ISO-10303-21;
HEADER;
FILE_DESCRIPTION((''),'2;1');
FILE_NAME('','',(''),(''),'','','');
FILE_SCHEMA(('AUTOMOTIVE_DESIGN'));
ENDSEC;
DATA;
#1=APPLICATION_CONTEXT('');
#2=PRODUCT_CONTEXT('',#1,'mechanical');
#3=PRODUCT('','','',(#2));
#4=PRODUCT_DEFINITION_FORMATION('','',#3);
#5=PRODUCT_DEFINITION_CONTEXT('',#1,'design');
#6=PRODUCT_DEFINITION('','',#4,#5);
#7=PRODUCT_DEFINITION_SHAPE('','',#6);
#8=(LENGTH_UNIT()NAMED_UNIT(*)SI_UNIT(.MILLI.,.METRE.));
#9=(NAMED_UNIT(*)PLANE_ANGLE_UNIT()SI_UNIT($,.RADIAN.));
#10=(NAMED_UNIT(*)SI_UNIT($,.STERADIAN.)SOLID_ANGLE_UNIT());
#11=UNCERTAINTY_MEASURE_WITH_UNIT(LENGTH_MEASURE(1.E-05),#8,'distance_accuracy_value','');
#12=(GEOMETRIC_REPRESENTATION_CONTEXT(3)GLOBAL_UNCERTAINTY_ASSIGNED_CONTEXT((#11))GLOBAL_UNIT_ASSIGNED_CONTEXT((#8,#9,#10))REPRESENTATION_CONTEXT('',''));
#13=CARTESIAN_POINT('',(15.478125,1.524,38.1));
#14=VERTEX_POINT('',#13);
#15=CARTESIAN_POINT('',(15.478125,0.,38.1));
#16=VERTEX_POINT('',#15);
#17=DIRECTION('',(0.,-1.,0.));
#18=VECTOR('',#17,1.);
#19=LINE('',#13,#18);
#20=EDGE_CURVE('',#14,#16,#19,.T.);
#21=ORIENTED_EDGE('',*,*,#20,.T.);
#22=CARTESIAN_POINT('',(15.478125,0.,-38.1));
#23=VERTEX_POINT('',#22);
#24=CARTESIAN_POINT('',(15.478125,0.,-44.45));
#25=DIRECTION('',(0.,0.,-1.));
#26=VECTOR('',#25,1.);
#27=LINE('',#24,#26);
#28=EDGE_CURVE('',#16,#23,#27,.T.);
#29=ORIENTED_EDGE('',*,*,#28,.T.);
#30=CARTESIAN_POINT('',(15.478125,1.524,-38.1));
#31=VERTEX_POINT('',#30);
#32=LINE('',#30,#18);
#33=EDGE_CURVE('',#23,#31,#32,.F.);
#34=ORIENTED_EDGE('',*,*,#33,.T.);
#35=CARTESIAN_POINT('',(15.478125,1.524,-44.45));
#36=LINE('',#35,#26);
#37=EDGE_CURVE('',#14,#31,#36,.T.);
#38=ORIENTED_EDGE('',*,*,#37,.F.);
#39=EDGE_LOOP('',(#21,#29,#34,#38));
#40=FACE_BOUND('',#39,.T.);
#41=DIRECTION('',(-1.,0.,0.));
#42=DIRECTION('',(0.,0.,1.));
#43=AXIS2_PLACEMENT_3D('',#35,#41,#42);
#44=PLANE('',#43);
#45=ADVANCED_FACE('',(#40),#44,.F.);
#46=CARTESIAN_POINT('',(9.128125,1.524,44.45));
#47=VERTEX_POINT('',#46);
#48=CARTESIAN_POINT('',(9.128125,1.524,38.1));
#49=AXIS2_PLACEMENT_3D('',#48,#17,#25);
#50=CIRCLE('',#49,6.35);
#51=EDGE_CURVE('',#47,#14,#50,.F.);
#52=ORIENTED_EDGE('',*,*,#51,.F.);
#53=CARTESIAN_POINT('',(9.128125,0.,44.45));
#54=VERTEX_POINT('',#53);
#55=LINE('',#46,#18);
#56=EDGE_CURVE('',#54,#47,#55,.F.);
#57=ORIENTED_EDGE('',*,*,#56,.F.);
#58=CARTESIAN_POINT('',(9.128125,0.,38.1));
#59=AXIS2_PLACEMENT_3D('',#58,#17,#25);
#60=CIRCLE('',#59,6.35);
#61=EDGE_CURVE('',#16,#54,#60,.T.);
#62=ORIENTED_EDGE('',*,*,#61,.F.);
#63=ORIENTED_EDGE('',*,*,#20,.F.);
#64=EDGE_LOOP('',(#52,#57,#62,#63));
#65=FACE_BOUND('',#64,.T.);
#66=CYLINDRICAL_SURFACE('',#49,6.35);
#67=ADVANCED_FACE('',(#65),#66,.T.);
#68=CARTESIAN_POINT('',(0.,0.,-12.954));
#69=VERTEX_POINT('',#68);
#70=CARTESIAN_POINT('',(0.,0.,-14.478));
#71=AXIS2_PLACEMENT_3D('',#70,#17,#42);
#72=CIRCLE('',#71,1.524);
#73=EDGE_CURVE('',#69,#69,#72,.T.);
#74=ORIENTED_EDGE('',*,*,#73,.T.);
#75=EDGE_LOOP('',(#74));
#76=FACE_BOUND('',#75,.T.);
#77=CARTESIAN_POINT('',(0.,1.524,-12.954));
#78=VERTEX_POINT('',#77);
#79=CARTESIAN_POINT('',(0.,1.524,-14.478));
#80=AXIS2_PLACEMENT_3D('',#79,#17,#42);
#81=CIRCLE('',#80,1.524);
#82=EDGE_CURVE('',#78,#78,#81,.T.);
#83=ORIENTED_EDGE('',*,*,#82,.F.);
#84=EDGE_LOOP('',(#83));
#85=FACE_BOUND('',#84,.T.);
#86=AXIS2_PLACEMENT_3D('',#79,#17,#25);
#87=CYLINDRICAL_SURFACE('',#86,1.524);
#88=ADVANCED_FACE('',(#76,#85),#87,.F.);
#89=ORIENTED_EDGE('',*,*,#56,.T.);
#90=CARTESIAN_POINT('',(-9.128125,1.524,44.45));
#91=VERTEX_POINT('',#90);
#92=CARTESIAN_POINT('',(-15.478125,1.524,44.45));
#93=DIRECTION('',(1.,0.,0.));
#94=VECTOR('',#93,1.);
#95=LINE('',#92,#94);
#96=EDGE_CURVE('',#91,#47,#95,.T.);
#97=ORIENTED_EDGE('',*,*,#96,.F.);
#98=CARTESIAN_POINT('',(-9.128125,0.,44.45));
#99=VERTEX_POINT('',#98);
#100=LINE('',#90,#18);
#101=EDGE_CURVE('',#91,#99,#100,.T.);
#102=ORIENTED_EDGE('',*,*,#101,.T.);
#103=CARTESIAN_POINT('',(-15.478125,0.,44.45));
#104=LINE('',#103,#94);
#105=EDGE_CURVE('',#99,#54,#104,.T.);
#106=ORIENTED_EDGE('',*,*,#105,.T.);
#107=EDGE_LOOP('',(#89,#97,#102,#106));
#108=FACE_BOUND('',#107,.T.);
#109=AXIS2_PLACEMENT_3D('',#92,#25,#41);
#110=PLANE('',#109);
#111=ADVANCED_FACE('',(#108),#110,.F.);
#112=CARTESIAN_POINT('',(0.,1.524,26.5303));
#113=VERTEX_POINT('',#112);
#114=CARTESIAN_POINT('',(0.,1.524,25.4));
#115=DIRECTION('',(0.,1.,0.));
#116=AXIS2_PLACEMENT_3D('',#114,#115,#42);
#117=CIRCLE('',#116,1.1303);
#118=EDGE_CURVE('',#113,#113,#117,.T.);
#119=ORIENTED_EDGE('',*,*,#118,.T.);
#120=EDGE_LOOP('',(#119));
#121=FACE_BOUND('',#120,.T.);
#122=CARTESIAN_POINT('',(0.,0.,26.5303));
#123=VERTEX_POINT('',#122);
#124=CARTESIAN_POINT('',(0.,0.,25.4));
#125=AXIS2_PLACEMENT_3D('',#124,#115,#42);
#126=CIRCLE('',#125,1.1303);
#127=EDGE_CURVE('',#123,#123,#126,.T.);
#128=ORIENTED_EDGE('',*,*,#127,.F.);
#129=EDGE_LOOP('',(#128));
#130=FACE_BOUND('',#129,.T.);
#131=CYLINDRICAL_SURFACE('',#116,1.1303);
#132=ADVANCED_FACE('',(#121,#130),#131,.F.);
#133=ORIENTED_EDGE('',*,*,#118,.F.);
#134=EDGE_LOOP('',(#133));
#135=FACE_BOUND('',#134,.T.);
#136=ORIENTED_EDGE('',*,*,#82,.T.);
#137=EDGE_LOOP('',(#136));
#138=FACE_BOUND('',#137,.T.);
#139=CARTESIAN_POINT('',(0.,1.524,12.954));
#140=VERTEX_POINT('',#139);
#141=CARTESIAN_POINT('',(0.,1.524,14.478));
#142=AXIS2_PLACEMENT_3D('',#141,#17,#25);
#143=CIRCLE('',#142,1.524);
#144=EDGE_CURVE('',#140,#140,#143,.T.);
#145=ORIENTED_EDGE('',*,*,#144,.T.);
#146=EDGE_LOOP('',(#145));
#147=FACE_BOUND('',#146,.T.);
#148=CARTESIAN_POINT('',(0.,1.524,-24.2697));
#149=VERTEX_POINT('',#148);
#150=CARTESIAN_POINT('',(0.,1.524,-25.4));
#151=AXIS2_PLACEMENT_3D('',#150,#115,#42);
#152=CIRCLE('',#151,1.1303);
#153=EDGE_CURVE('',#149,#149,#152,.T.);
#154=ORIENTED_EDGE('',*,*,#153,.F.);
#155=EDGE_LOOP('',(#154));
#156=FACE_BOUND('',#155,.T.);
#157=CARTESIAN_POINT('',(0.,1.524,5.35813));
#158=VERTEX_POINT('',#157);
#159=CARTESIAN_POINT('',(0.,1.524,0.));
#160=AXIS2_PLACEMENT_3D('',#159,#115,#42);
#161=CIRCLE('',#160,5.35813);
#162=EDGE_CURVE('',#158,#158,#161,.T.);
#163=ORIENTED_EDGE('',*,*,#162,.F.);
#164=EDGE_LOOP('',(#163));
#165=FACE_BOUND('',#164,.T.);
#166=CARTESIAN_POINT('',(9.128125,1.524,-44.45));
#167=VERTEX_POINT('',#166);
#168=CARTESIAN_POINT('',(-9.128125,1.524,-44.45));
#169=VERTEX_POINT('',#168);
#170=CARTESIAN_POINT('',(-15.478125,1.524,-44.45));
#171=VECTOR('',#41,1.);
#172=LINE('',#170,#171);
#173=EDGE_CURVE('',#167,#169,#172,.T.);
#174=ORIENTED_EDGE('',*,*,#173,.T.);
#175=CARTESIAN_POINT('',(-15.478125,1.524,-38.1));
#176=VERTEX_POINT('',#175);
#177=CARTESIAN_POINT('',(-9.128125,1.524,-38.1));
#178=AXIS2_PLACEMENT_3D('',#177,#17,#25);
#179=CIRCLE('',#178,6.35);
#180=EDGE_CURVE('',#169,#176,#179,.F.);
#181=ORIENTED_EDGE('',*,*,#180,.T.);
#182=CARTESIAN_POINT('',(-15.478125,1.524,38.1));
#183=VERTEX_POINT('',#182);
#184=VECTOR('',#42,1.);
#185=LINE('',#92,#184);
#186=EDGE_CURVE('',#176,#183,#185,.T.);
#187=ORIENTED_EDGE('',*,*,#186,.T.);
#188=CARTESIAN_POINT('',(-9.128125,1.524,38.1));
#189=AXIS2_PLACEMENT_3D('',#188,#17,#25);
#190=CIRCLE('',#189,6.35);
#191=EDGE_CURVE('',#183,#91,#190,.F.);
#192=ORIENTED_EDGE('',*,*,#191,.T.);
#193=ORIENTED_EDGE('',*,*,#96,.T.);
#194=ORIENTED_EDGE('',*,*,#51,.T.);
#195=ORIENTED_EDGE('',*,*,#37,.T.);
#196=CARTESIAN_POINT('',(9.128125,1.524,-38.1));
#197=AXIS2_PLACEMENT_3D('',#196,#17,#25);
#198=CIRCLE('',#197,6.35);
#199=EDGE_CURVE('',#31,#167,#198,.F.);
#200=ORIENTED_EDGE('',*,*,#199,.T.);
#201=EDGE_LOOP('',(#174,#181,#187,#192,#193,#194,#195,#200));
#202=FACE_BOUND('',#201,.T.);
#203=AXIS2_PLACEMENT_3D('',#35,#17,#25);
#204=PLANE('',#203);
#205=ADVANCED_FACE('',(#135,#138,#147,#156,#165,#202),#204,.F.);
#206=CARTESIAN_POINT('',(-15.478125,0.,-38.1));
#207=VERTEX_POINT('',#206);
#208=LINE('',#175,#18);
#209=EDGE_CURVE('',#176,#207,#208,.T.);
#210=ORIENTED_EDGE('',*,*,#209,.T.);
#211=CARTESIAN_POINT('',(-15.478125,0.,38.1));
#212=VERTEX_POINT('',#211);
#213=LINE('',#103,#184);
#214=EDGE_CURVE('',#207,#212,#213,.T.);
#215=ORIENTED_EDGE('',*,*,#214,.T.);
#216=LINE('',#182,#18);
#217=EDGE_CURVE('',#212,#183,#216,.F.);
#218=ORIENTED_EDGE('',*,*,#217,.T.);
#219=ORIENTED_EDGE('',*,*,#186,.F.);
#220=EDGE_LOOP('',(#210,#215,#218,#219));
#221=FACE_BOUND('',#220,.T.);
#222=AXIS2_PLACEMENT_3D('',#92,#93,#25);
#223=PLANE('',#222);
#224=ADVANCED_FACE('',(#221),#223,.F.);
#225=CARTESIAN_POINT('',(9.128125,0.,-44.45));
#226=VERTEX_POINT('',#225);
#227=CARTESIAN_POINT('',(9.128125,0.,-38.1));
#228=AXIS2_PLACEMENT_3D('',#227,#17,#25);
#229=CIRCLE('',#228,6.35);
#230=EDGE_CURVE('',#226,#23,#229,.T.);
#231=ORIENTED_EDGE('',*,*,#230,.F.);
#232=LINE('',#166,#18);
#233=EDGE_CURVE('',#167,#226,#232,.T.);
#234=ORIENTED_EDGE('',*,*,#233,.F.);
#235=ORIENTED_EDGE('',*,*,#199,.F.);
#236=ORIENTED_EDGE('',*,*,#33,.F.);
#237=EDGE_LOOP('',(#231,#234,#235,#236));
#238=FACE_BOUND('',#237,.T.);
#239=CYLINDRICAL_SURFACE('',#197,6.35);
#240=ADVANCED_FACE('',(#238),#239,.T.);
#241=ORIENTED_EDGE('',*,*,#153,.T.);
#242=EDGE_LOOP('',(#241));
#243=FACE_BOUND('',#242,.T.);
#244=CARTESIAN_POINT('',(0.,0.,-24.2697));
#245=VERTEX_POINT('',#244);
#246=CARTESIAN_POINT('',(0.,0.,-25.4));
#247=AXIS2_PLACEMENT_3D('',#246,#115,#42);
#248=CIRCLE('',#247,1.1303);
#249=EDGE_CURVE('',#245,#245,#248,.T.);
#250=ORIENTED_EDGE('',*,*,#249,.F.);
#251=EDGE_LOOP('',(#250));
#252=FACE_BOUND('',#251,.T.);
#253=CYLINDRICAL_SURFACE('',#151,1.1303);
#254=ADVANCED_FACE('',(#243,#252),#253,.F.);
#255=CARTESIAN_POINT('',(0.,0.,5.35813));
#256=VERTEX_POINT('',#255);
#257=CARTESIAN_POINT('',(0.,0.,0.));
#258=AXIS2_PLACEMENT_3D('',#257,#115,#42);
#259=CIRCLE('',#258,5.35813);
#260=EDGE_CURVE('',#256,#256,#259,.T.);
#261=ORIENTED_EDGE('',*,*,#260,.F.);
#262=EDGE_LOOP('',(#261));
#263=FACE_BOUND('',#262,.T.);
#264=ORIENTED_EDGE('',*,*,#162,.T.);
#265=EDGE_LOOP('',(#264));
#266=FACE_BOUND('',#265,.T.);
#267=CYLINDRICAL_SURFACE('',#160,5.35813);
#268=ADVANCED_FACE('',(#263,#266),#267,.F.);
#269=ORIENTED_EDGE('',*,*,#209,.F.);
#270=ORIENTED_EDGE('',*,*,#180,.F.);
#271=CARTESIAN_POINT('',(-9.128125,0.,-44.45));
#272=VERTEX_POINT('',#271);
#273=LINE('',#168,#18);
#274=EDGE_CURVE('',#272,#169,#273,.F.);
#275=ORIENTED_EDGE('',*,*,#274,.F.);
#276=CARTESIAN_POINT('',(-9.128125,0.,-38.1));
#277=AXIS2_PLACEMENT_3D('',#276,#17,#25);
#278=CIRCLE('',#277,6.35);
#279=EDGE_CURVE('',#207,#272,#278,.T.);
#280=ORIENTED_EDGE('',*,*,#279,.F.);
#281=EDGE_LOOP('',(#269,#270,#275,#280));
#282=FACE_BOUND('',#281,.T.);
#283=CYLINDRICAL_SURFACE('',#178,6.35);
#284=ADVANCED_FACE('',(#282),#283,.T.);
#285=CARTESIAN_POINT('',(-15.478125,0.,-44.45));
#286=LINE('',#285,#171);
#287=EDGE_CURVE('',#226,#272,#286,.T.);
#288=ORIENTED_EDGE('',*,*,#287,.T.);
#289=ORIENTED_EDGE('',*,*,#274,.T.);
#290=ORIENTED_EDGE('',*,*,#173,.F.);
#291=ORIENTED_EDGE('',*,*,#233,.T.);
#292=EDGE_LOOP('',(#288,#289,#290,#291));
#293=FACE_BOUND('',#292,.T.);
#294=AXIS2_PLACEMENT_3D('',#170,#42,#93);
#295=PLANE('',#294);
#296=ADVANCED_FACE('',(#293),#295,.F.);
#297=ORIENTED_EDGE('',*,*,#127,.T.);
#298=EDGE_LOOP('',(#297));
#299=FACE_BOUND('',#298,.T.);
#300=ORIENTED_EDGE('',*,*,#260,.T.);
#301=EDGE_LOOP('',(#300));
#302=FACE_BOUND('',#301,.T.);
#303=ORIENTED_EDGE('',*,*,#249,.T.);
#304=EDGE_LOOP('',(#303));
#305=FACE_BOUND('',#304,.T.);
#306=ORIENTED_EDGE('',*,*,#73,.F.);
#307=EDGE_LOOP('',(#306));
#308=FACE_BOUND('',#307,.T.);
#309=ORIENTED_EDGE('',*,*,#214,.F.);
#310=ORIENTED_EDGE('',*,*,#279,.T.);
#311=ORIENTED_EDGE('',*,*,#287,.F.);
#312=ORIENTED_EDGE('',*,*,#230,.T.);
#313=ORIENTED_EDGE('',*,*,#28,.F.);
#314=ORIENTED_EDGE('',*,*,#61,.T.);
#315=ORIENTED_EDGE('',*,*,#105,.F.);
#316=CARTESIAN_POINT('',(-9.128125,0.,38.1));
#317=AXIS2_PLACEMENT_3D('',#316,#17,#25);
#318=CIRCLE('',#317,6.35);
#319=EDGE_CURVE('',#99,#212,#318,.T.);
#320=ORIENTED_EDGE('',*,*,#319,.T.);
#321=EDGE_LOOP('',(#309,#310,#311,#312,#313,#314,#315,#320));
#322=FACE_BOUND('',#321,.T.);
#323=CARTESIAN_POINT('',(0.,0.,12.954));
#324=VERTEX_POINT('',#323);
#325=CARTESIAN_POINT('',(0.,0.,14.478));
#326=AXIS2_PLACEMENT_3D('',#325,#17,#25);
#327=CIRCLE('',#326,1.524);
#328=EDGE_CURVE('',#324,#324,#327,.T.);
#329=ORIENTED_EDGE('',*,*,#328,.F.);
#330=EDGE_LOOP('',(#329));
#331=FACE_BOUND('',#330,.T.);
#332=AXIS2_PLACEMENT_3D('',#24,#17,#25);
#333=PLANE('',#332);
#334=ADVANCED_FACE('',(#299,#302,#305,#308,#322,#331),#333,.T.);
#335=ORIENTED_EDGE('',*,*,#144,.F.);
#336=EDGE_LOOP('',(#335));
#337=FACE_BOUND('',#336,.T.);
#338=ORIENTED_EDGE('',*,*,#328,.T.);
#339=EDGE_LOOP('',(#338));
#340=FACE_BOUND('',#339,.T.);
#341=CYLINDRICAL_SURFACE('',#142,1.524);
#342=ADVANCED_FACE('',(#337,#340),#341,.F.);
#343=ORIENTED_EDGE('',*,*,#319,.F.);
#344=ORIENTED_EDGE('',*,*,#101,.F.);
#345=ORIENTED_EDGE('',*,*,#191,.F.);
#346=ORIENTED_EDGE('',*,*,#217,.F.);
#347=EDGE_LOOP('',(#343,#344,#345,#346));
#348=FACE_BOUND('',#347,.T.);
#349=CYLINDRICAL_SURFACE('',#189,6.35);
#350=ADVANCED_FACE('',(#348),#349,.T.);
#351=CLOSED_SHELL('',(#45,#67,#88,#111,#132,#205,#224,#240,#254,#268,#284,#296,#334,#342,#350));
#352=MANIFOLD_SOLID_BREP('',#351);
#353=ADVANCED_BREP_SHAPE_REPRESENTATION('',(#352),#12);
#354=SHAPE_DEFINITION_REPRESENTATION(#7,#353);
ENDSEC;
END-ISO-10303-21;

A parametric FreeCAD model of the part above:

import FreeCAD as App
import Part
import Sketcher
Q = App.Units.Quantity


def edges_at(feature, points):
    """Names of the edges that pass closest to the given points."""
    edges = feature.Shape.Edges
    near = lambda p: min(range(len(edges)), key=lambda i: edges[i].distToShape(Part.Vertex(*p))[0])
    return sorted({f"Edge{near(p) + 1}" for p in points})

doc = App.newDocument("Part")
params = doc.addObject("Spreadsheet::Sheet", "Params")
for row, (alias, value) in enumerate([
    ("sketch1_height", "3.5 in"),
    ("sketch1_width", "1.21875 in"),
    ("pad1_length", "0.06 in"),
    ("fillet_radius", "0.25 in"),
    ("sketch2_diameter", "0.12 in"),
    ("sketch3_diameter", "0.089 in"),
    ("hole_diameter", "0.089 in"),
    ("hole2_diameter", "0.4219 in"),
], start=1):
    params.set(f"A{row}", alias)
    params.set(f"B{row}", "=" + value)
    params.setAlias(f"B{row}", alias)

body = doc.addObject("PartDesign::Body", "Body")

# Sketch on XZ plane
sketch1 = body.newObject("Sketcher::SketchObject", "Sketch")
sketch1.AttachmentSupport = (doc.getObject("XZ_Plane"), [""])
sketch1.MapMode = "FlatFace"
sketch1.addGeometry([
    Part.LineSegment(App.Vector(-15, -44, 0), App.Vector(-15, 44, 0)),
    Part.LineSegment(App.Vector(-15, 44, 0), App.Vector(15, 44, 0)),
    Part.LineSegment(App.Vector(15, 44, 0), App.Vector(15, -44, 0)),
    Part.LineSegment(App.Vector(15, -44, 0), App.Vector(-15, -44, 0)),
], False)
sketch1.addConstraint([
    Sketcher.Constraint("Coincident", 0, 2, 1, 1),
    Sketcher.Constraint("Coincident", 1, 2, 2, 1),
    Sketcher.Constraint("Coincident", 2, 2, 3, 1),
    Sketcher.Constraint("Coincident", 3, 2, 0, 1),
    Sketcher.Constraint("Vertical", 0),
    Sketcher.Constraint("Horizontal", 1),
    Sketcher.Constraint("Vertical", 2),
    Sketcher.Constraint("Horizontal", 3),
    Sketcher.Constraint("Symmetric", 0, 2, 2, 2, -1, 1),
    Sketcher.Constraint("DistanceY", 0, 1, 0, 2, Q("3.5 in")),
    Sketcher.Constraint("DistanceX", 1, 1, 1, 2, Q("1.21875 in")),
])
sketch1.setExpression("Constraints[9]", "Params.sketch1_height")
sketch1.setExpression("Constraints[10]", "Params.sketch1_width")
pad1 = body.newObject("PartDesign::Pad", "Pad")
pad1.Profile = sketch1
pad1.setExpression("Length", "Params.pad1_length")
pad1.Reversed = True
doc.recompute()

fillet = body.newObject("PartDesign::Fillet", "Fillet")
fillet.Base = (pad1, edges_at(pad1, [
    (15.478, 0.762, -44.45),
    (15.478, 0.762, 44.45),
    (-15.478, 0.762, 44.45),
    (-15.478, 0.762, -44.45),
]))
fillet.setExpression("Radius", "Params.fillet_radius")

# Sketch on XZ plane
sketch2 = body.newObject("Sketcher::SketchObject", "Sketch001")
sketch2.AttachmentSupport = (doc.getObject("XZ_Plane"), [""])
sketch2.MapMode = "FlatFace"
sketch2.addGeometry([
    Part.Circle(App.Vector(0, 14.5, 0), App.Vector(0, 0, 1), 1.5),
    Part.Circle(App.Vector(0, -14.5, 0), App.Vector(0, 0, 1), 1.5),
], False)
sketch2.addConstraint([
    Sketcher.Constraint("Equal", 0, 1),
    Sketcher.Constraint("Symmetric", 0, 3, 1, 3, -1, 1),
    Sketcher.Constraint("PointOnObject", 0, 3, -2),
    Sketcher.Constraint("Diameter", 0, Q("0.12 in")),
    Sketcher.Constraint("DistanceY", -1, 1, 0, 3, Q("0.57 in")),
])
sketch2.setExpression("Constraints[3]", "Params.sketch2_diameter")
pocket1 = body.newObject("PartDesign::Pocket", "Pocket")
pocket1.Profile = sketch2
pocket1.Type = "ThroughAll"

# Sketch on XZ plane
sketch3 = body.newObject("Sketcher::SketchObject", "Sketch002")
sketch3.AttachmentSupport = (doc.getObject("XZ_Plane"), [""])
sketch3.MapMode = "FlatFace"
sketch3.AttachmentOffset = App.Placement(App.Vector(0, 0, -0.06 * 25.4), App.Rotation())
sketch3.addGeometry([
    Part.Circle(App.Vector(0, 25.4, 0), App.Vector(0, 0, 1), 1.1),
    Part.Circle(App.Vector(0, -25.4, 0), App.Vector(0, 0, 1), 1.1),
], False)
sketch3.addConstraint([
    Sketcher.Constraint("Equal", 0, 1),
    Sketcher.Constraint("Symmetric", 0, 3, 1, 3, -1, 1),
    Sketcher.Constraint("PointOnObject", 0, 3, -2),
    Sketcher.Constraint("Diameter", 0, Q("0.089 in")),
    Sketcher.Constraint("DistanceY", -1, 1, 0, 3, Q("1 in")),
])
sketch3.setExpression("Constraints[3]", "Params.sketch3_diameter")
doc.recompute()
hole = body.newObject("PartDesign::Hole", "Hole")
hole.Profile = sketch3
hole.ThreadType = "None"
hole.setExpression("Diameter", "Params.hole_diameter")
hole.DepthType = "ThroughAll"
hole.Reversed = True

# Sketch on XZ plane
sketch4 = body.newObject("Sketcher::SketchObject", "Sketch003")
sketch4.AttachmentSupport = (doc.getObject("XZ_Plane"), [""])
sketch4.MapMode = "FlatFace"
sketch4.AttachmentOffset = App.Placement(App.Vector(0, 0, -0.06 * 25.4), App.Rotation())
sketch4.addGeometry(Part.Circle(App.Vector(0, 0, 0), App.Vector(0, 0, 1), 5), False)
sketch4.addConstraint([
    Sketcher.Constraint("Coincident", 0, 3, -1, 1),
    Sketcher.Constraint("Diameter", 0, Q("0.4219 in")),
])
doc.recompute()
hole2 = body.newObject("PartDesign::Hole", "Hole001")
hole2.Profile = sketch4
hole2.ThreadType = "None"
hole2.setExpression("Diameter", "Params.hole2_diameter")
hole2.DepthType = "ThroughAll"
hole2.Reversed = True

doc.recompute()
